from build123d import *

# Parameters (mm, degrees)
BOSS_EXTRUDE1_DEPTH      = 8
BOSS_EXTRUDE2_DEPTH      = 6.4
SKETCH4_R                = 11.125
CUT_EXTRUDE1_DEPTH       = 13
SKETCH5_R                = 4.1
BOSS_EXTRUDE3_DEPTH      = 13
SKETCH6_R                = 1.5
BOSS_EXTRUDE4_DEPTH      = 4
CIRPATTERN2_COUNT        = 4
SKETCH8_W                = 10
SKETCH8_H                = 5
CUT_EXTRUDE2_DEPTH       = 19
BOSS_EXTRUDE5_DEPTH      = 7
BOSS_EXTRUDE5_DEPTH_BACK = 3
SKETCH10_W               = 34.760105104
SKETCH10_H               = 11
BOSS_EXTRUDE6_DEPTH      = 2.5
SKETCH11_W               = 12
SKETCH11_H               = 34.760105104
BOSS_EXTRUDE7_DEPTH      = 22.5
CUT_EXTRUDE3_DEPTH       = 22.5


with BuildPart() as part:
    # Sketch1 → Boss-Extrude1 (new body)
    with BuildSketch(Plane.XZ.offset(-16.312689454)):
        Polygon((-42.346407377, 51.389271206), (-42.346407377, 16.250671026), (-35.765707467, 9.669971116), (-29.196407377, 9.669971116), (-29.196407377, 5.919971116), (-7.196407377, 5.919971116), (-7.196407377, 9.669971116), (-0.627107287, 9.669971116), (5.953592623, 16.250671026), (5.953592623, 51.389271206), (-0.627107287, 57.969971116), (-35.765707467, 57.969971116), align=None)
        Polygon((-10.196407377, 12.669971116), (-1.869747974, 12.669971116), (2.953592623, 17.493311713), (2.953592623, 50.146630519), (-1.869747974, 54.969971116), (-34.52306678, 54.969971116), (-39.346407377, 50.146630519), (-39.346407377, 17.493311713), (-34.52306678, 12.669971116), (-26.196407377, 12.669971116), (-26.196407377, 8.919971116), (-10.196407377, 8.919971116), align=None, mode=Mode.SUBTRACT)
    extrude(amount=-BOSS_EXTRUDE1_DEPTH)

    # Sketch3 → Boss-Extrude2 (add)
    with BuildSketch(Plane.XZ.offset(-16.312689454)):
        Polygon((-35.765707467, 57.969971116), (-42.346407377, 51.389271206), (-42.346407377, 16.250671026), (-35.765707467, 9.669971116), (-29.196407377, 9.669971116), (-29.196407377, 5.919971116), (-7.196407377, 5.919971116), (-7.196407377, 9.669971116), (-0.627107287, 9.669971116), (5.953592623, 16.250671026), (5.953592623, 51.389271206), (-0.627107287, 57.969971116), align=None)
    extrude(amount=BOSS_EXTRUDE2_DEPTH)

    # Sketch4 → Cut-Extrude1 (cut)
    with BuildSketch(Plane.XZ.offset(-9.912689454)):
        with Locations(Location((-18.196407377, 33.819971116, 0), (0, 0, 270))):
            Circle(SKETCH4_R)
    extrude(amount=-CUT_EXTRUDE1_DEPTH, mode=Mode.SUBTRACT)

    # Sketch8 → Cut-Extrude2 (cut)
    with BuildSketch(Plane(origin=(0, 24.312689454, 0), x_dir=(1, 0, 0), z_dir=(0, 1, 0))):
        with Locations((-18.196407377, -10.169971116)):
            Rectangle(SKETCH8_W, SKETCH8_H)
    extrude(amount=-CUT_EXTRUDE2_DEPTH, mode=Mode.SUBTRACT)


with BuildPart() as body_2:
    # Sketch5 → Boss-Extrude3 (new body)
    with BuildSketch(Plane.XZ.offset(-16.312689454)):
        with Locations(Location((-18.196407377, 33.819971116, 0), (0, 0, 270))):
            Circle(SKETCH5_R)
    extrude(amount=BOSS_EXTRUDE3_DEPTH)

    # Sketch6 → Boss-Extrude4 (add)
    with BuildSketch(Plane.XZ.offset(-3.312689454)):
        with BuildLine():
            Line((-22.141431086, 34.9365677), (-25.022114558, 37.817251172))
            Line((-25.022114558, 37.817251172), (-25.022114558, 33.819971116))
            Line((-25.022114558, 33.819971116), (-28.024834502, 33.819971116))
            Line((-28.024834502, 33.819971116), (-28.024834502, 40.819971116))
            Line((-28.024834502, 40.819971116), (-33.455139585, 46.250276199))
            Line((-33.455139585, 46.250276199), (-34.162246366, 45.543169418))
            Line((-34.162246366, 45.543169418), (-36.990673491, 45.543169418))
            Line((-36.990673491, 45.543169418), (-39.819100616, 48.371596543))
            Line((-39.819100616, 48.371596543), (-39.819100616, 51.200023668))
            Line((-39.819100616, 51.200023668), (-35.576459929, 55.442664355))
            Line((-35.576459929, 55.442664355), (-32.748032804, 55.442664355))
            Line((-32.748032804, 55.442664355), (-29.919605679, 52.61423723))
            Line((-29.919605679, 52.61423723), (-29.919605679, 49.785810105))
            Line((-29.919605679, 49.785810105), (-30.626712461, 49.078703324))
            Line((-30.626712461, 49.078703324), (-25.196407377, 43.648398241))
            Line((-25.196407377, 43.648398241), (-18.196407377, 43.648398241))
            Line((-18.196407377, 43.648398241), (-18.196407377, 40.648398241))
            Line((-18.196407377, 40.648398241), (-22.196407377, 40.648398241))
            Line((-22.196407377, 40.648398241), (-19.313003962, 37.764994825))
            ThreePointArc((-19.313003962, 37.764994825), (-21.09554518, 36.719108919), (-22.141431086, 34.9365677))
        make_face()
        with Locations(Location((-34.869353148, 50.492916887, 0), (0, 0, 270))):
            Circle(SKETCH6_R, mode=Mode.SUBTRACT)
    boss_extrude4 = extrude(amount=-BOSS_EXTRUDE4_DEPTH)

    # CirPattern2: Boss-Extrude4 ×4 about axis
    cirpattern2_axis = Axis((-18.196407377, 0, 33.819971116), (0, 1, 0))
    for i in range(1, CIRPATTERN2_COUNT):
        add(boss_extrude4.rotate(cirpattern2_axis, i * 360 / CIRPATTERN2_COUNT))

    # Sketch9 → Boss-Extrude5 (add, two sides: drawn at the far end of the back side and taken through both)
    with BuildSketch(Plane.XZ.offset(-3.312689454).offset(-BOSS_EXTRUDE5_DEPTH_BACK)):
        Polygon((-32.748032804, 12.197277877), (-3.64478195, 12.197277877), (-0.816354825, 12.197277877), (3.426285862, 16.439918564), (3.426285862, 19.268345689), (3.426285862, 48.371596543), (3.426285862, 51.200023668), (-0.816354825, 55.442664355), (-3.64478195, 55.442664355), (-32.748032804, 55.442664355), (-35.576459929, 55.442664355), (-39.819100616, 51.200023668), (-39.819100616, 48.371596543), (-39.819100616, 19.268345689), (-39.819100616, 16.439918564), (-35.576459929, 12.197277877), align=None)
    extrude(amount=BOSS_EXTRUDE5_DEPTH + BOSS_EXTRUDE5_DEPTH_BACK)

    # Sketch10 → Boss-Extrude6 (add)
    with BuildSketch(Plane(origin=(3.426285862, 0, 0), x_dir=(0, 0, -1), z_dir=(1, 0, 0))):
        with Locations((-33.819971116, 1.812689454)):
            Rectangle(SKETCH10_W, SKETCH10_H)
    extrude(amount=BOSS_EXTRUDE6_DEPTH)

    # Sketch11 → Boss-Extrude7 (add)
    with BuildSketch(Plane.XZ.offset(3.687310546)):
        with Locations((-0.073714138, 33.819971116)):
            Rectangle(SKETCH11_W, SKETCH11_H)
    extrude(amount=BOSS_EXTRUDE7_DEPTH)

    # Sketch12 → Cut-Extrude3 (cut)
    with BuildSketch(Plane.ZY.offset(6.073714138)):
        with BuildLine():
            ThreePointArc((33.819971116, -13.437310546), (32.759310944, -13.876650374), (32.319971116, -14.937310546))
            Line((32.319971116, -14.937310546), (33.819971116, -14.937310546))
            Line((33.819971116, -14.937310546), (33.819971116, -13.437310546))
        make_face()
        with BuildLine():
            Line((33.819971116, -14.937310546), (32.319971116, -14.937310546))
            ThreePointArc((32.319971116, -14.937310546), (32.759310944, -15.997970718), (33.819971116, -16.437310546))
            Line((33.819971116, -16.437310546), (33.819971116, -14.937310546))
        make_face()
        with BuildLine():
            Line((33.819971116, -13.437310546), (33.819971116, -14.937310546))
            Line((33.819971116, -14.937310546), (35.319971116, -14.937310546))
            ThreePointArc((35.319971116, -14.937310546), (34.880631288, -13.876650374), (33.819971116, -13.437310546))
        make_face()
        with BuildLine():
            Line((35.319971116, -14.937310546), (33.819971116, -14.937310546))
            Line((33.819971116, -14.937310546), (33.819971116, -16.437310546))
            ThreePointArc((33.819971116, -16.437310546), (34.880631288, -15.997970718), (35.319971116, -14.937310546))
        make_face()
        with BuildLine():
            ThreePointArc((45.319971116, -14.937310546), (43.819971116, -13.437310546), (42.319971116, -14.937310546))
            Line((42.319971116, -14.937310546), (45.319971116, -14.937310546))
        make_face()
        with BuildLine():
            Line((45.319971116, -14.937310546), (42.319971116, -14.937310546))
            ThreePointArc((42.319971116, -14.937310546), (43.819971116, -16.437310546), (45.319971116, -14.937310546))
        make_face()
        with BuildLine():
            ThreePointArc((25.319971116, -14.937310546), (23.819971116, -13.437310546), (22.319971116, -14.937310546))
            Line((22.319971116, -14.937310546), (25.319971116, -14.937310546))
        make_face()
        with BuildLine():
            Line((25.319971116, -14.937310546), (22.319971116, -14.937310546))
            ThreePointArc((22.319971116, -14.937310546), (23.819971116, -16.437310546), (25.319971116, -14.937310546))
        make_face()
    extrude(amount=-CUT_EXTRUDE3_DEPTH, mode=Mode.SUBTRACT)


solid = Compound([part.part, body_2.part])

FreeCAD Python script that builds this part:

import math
import FreeCAD as App
import Part
import Sketcher

V = App.Vector
Q = App.Units.Quantity

doc = App.newDocument("Part")
body = doc.addObject("PartDesign::Body", "Body")

# Sketch on XZ plane
sketch1 = body.newObject("Sketcher::SketchObject", "Sketch")
sketch1.AttachmentSupport = (doc.getObject("XZ_Plane"), [""])
sketch1.MapMode = "FlatFace"
sketch1.AttachmentOffset = App.Placement(V(0, 0, -16.312689), App.Rotation())
sketch1.addGeometry(Part.LineSegment(V(-42.3, 51.4, 0), V(-42.3, 16.3, 0)), False)
sketch1.addGeometry(Part.LineSegment(V(-42.3, 16.3, 0), V(-35.8, 9.7, 0)), False)
sketch1.addGeometry(Part.LineSegment(V(-35.8, 9.7, 0), V(-29.2, 9.7, 0)), False)
sketch1.addGeometry(Part.LineSegment(V(-29.2, 9.7, 0), V(-29.2, 5.9, 0)), False)
sketch1.addGeometry(Part.LineSegment(V(-29.2, 5.9, 0), V(-7.2, 5.9, 0)), False)
sketch1.addGeometry(Part.LineSegment(V(-7.2, 5.9, 0), V(-7.2, 9.7, 0)), False)
sketch1.addGeometry(Part.LineSegment(V(-7.2, 9.7, 0), V(-0.6, 9.7, 0)), False)
sketch1.addGeometry(Part.LineSegment(V(-0.6, 9.7, 0), V(6, 16.3, 0)), False)
sketch1.addGeometry(Part.LineSegment(V(6, 16.3, 0), V(6, 51.4, 0)), False)
sketch1.addGeometry(Part.LineSegment(V(6, 51.4, 0), V(-0.6, 58, 0)), False)
sketch1.addGeometry(Part.LineSegment(V(-0.6, 58, 0), V(-35.8, 58, 0)), False)
sketch1.addGeometry(Part.LineSegment(V(-35.8, 58, 0), V(-42.3, 51.4, 0)), False)
sketch1.addGeometry(Part.LineSegment(V(-1.9, 12.7, 0), V(-10.2, 12.7, 0)), False)
sketch1.addGeometry(Part.LineSegment(V(-10.2, 12.7, 0), V(-10.2, 8.9, 0)), False)
sketch1.addGeometry(Part.LineSegment(V(-10.2, 8.9, 0), V(-26.2, 8.9, 0)), False)
sketch1.addGeometry(Part.LineSegment(V(-26.2, 8.9, 0), V(-26.2, 12.7, 0)), False)
sketch1.addGeometry(Part.LineSegment(V(-26.2, 12.7, 0), V(-34.5, 12.7, 0)), False)
sketch1.addGeometry(Part.LineSegment(V(-34.5, 12.7, 0), V(-39.3, 17.5, 0)), False)
sketch1.addGeometry(Part.LineSegment(V(-39.3, 17.5, 0), V(-39.3, 50.1, 0)), False)
sketch1.addGeometry(Part.LineSegment(V(-39.3, 50.1, 0), V(-34.5, 55, 0)), False)
sketch1.addGeometry(Part.LineSegment(V(-34.5, 55, 0), V(-1.9, 55, 0)), False)
sketch1.addGeometry(Part.LineSegment(V(-1.9, 55, 0), V(3, 50.1, 0)), False)
sketch1.addGeometry(Part.LineSegment(V(3, 50.1, 0), V(3, 17.5, 0)), False)
sketch1.addGeometry(Part.LineSegment(V(3, 17.5, 0), V(-1.9, 12.7, 0)), False)
sketch1.addConstraint(Sketcher.Constraint("Coincident", 0, 2, 1, 1))
sketch1.addConstraint(Sketcher.Constraint("Coincident", 1, 2, 2, 1))
sketch1.addConstraint(Sketcher.Constraint("Coincident", 2, 2, 3, 1))
sketch1.addConstraint(Sketcher.Constraint("Coincident", 3, 2, 4, 1))
sketch1.addConstraint(Sketcher.Constraint("Coincident", 4, 2, 5, 1))
sketch1.addConstraint(Sketcher.Constraint("Coincident", 5, 2, 6, 1))
sketch1.addConstraint(Sketcher.Constraint("Coincident", 6, 2, 7, 1))
sketch1.addConstraint(Sketcher.Constraint("Coincident", 7, 2, 8, 1))
sketch1.addConstraint(Sketcher.Constraint("Coincident", 8, 2, 9, 1))
sketch1.addConstraint(Sketcher.Constraint("Coincident", 9, 2, 10, 1))
sketch1.addConstraint(Sketcher.Constraint("Coincident", 10, 2, 11, 1))
sketch1.addConstraint(Sketcher.Constraint("Coincident", 11, 2, 0, 1))
sketch1.addConstraint(Sketcher.Constraint("Coincident", 12, 2, 13, 1))
sketch1.addConstraint(Sketcher.Constraint("Coincident", 13, 2, 14, 1))
sketch1.addConstraint(Sketcher.Constraint("Coincident", 14, 2, 15, 1))
sketch1.addConstraint(Sketcher.Constraint("Coincident", 15, 2, 16, 1))
sketch1.addConstraint(Sketcher.Constraint("Coincident", 16, 2, 17, 1))
sketch1.addConstraint(Sketcher.Constraint("Coincident", 17, 2, 18, 1))
sketch1.addConstraint(Sketcher.Constraint("Coincident", 18, 2, 19, 1))
sketch1.addConstraint(Sketcher.Constraint("Coincident", 19, 2, 20, 1))
sketch1.addConstraint(Sketcher.Constraint("Coincident", 20, 2, 21, 1))
sketch1.addConstraint(Sketcher.Constraint("Coincident", 21, 2, 22, 1))
sketch1.addConstraint(Sketcher.Constraint("Coincident", 22, 2, 23, 1))
sketch1.addConstraint(Sketcher.Constraint("Coincident", 23, 2, 12, 1))
sketch1.addConstraint(Sketcher.Constraint("Vertical", 0))
sketch1.addConstraint(Sketcher.Constraint("Horizontal", 2))
sketch1.addConstraint(Sketcher.Constraint("Vertical", 3))
sketch1.addConstraint(Sketcher.Constraint("Horizontal", 4))
sketch1.addConstraint(Sketcher.Constraint("Vertical", 5))
sketch1.addConstraint(Sketcher.Constraint("Horizontal", 6))
sketch1.addConstraint(Sketcher.Constraint("Vertical", 8))
sketch1.addConstraint(Sketcher.Constraint("Horizontal", 10))
sketch1.addConstraint(Sketcher.Constraint("Horizontal", 12))
sketch1.addConstraint(Sketcher.Constraint("Vertical", 13))
sketch1.addConstraint(Sketcher.Constraint("Horizontal", 14))
sketch1.addConstraint(Sketcher.Constraint("Vertical", 15))
sketch1.addConstraint(Sketcher.Constraint("Horizontal", 16))
sketch1.addConstraint(Sketcher.Constraint("Vertical", 18))
sketch1.addConstraint(Sketcher.Constraint("Horizontal", 20))
sketch1.addConstraint(Sketcher.Constraint("Vertical", 22))
sketch1.addConstraint(Sketcher.Constraint("Perpendicular", 1, 7))
sketch1.addConstraint(Sketcher.Constraint("Perpendicular", 7, 9))
sketch1.addConstraint(Sketcher.Constraint("Perpendicular", 9, 11))
sketch1.addConstraint(Sketcher.Constraint("Perpendicular", 11, 17))
sketch1.addConstraint(Sketcher.Constraint("Perpendicular", 17, 19))
sketch1.addConstraint(Sketcher.Constraint("Perpendicular", 19, 21))
sketch1.addConstraint(Sketcher.Constraint("Perpendicular", 21, 23))
sketch1.addConstraint(Sketcher.Constraint("Horizontal", 2, 2, 5, 2))
sketch1.addConstraint(Sketcher.Constraint("Horizontal", 0, 2, 7, 2))
sketch1.addConstraint(Sketcher.Constraint("Horizontal", 8, 2, 11, 2))
sketch1.addConstraint(Sketcher.Constraint("Horizontal", 12, 2, 15, 2))
sketch1.addConstraint(Sketcher.Constraint("Horizontal", 18, 2, 21, 2))
sketch1.addConstraint(Sketcher.Constraint("Horizontal", 17, 2, 22, 2))
sketch1.addConstraint(Sketcher.Constraint("Vertical", 6, 2, 9, 2))
sketch1.addConstraint(Sketcher.Constraint("Vertical", 1, 2, 10, 2))
sketch1.addConstraint(Sketcher.Constraint("Vertical", 16, 2, 19, 2))
sketch1.addConstraint(Sketcher.Constraint("Equal", 2, 6))
sketch1.addConstraint(Sketcher.Constraint("Equal", 12, 16))
sketch1.addConstraint(Sketcher.Constraint("Equal", 10, 0))
sketch1.addConstraint(Sketcher.Constraint("Equal", 5, 13))
sketch1.addConstraint(Sketcher.Constraint("Equal", 20, 18))
sketch1.addConstraint(Sketcher.Constraint("DistanceX", 4, 1, 4, 2, 22.0))
sketch1.addConstraint(Sketcher.Constraint("DistanceX", 14, 2, 14, 1, 16.0))
sketch1.addConstraint(Sketcher.Constraint("DistanceX", 12, 2, 5, 2, 3.0))
sketch1.addConstraint(Sketcher.Constraint("DistanceY", 5, 2, 12, 2, 3.0))
sketch1.addConstraint(Sketcher.Constraint("DistanceX", 0, 2, 17, 2, 3.0))
sketch1.addConstraint(Sketcher.Constraint("DistanceY", 3, 2, 3, 1, 3.75))
sketch1.addConstraint(Sketcher.Constraint("DistanceY", 6, 2, 9, 2, 48.3))
sketch1.addConstraint(Sketcher.Constraint("DistanceX", 2, 1, 2, 2, 6.5693))
sketch1.addConstraint(Sketcher.Constraint("DistanceX", 12, 2, 12, 1, 8.326659))
sketch1.addConstraint(Sketcher.Constraint("DistanceY", -1, 1, 0, 2, 16.250671))
sketch1.addConstraint(Sketcher.Constraint("DistanceX", 0, 2, -1, 1, 42.346407))
pad1 = body.newObject("PartDesign::Pad", "Pad")
pad1.Profile = sketch1
pad1.Length = 8
pad1.Reversed = True

# Sketch on XZ plane
sketch2 = body.newObject("Sketcher::SketchObject", "Sketch001")
sketch2.AttachmentSupport = (doc.getObject("XZ_Plane"), [""])
sketch2.MapMode = "FlatFace"
sketch2.AttachmentOffset = App.Placement(V(0, 0, -16.312689), App.Rotation())
sketch2.addGeometry(Part.LineSegment(V(-35.8, 58, 0), V(-42.3, 51.4, 0)), False)
sketch2.addGeometry(Part.LineSegment(V(-42.3, 51.4, 0), V(-42.3, 16.3, 0)), False)
sketch2.addGeometry(Part.LineSegment(V(-42.3, 16.3, 0), V(-35.8, 9.7, 0)), False)
sketch2.addGeometry(Part.LineSegment(V(-35.8, 9.7, 0), V(-29.2, 9.7, 0)), False)
sketch2.addGeometry(Part.LineSegment(V(-29.2, 9.7, 0), V(-29.2, 5.9, 0)), False)
sketch2.addGeometry(Part.LineSegment(V(-29.2, 5.9, 0), V(-7.2, 5.9, 0)), False)
sketch2.addGeometry(Part.LineSegment(V(-7.2, 5.9, 0), V(-7.2, 9.7, 0)), False)
sketch2.addGeometry(Part.LineSegment(V(-7.2, 9.7, 0), V(-0.6, 9.7, 0)), False)
sketch2.addGeometry(Part.LineSegment(V(-0.6, 9.7, 0), V(6, 16.3, 0)), False)
sketch2.addGeometry(Part.LineSegment(V(6, 16.3, 0), V(6, 51.4, 0)), False)
sketch2.addGeometry(Part.LineSegment(V(6, 51.4, 0), V(-0.6, 58, 0)), False)
sketch2.addGeometry(Part.LineSegment(V(-0.6, 58, 0), V(-35.8, 58, 0)), False)
sketch2.addConstraint(Sketcher.Constraint("Coincident", 0, 2, 1, 1))
sketch2.addConstraint(Sketcher.Constraint("Coincident", 1, 2, 2, 1))
sketch2.addConstraint(Sketcher.Constraint("Coincident", 2, 2, 3, 1))
sketch2.addConstraint(Sketcher.Constraint("Coincident", 3, 2, 4, 1))
sketch2.addConstraint(Sketcher.Constraint("Coincident", 4, 2, 5, 1))
sketch2.addConstraint(Sketcher.Constraint("Coincident", 5, 2, 6, 1))
sketch2.addConstraint(Sketcher.Constraint("Coincident", 6, 2, 7, 1))
sketch2.addConstraint(Sketcher.Constraint("Coincident", 7, 2, 8, 1))
sketch2.addConstraint(Sketcher.Constraint("Coincident", 8, 2, 9, 1))
sketch2.addConstraint(Sketcher.Constraint("Coincident", 9, 2, 10, 1))
sketch2.addConstraint(Sketcher.Constraint("Coincident", 10, 2, 11, 1))
sketch2.addConstraint(Sketcher.Constraint("Coincident", 11, 2, 0, 1))
sketch2.addConstraint(Sketcher.Constraint("Vertical", 1))
sketch2.addConstraint(Sketcher.Constraint("Horizontal", 3))
sketch2.addConstraint(Sketcher.Constraint("Vertical", 4))
sketch2.addConstraint(Sketcher.Constraint("Horizontal", 5))
sketch2.addConstraint(Sketcher.Constraint("Vertical", 6))
sketch2.addConstraint(Sketcher.Constraint("Horizontal", 7))
sketch2.addConstraint(Sketcher.Constraint("Vertical", 9))
sketch2.addConstraint(Sketcher.Constraint("Horizontal", 11))
sketch2.addConstraint(Sketcher.Constraint("Perpendicular", 0, 2))
sketch2.addConstraint(Sketcher.Constraint("Perpendicular", 2, 8))
sketch2.addConstraint(Sketcher.Constraint("Perpendicular", 8, 10))
sketch2.addConstraint(Sketcher.Constraint("Horizontal", 3, 2, 6, 2))
sketch2.addConstraint(Sketcher.Constraint("Horizontal", 1, 2, 8, 2))
sketch2.addConstraint(Sketcher.Constraint("Horizontal", 0, 2, 9, 2))
sketch2.addConstraint(Sketcher.Constraint("Vertical", 7, 2, 10, 2))
sketch2.addConstraint(Sketcher.Constraint("Vertical", 2, 2, 11, 2))
sketch2.addConstraint(Sketcher.Constraint("Equal", 3, 7))
sketch2.addConstraint(Sketcher.Constraint("Equal", 11, 1))
sketch2.addConstraint(Sketcher.Constraint("DistanceX", 5, 1, 5, 2, 22.0))
sketch2.addConstraint(Sketcher.Constraint("DistanceY", 4, 2, 4, 1, 3.75))
sketch2.addConstraint(Sketcher.Constraint("DistanceX", 0, 2, 9, 2, 48.3))
sketch2.addConstraint(Sketcher.Constraint("DistanceX", 3, 1, 3, 2, 6.5693))
sketch2.addConstraint(Sketcher.Constraint("DistanceY", -1, 1, 0, 2, 51.389271))
sketch2.addConstraint(Sketcher.Constraint("DistanceX", 0, 2, -1, 1, 42.346407))
pad2 = body.newObject("PartDesign::Pad", "Pad001")
pad2.Profile = sketch2
pad2.Length = 6.4

# Sketch on XZ plane
sketch3 = body.newObject("Sketcher::SketchObject", "Sketch002")
sketch3.AttachmentSupport = (doc.getObject("XZ_Plane"), [""])
sketch3.MapMode = "FlatFace"
sketch3.AttachmentOffset = App.Placement(V(0, 0, -9.912689), App.Rotation())
sketch3.addGeometry(Part.Circle(V(-18, 34, 0), V(0, 0, 1), 11), False)
sketch3.addConstraint(Sketcher.Constraint("Diameter", 0, 22.25))
sketch3.addConstraint(Sketcher.Constraint("DistanceY", -1, 1, 0, 3, 33.819971))
sketch3.addConstraint(Sketcher.Constraint("DistanceX", 0, 3, -1, 1, 18.196407))
pocket1 = body.newObject("PartDesign::Pocket", "Pocket")
pocket1.Profile = sketch3
pocket1.Length = 13

# Sketch on XZ plane
sketch4 = body.newObject("Sketcher::SketchObject", "Sketch003")
sketch4.AttachmentSupport = (doc.getObject("XZ_Plane"), [""])
sketch4.MapMode = "FlatFace"
sketch4.AttachmentOffset = App.Placement(V(0, 0, -24.312689), App.Rotation())
sketch4.addGeometry(Part.LineSegment(V(-23.2, 7.7, 0), V(-23.2, 12.7, 0)), False)
sketch4.addGeometry(Part.LineSegment(V(-23.2, 12.7, 0), V(-13.2, 12.7, 0)), False)
sketch4.addGeometry(Part.LineSegment(V(-13.2, 12.7, 0), V(-13.2, 7.7, 0)), False)
sketch4.addGeometry(Part.LineSegment(V(-13.2, 7.7, 0), V(-23.2, 7.7, 0)), False)
sketch4.addConstraint(Sketcher.Constraint("Coincident", 0, 2, 1, 1))
sketch4.addConstraint(Sketcher.Constraint("Coincident", 1, 2, 2, 1))
sketch4.addConstraint(Sketcher.Constraint("Coincident", 2, 2, 3, 1))
sketch4.addConstraint(Sketcher.Constraint("Coincident", 3, 2, 0, 1))
sketch4.addConstraint(Sketcher.Constraint("Vertical", 0))
sketch4.addConstraint(Sketcher.Constraint("Horizontal", 1))
sketch4.addConstraint(Sketcher.Constraint("Vertical", 2))
sketch4.addConstraint(Sketcher.Constraint("Horizontal", 3))
sketch4.addConstraint(Sketcher.Constraint("DistanceX", 1, 1, 1, 2, 10.0))
sketch4.addConstraint(Sketcher.Constraint("DistanceY", 0, 1, 0, 2, 5.0))
sketch4.addConstraint(Sketcher.Constraint("DistanceY", -1, 1, 0, 2, 12.669971))
sketch4.addConstraint(Sketcher.Constraint("DistanceX", 0, 2, -1, 1, 23.196407))
pocket2 = body.newObject("PartDesign::Pocket", "Pocket001")
pocket2.Profile = sketch4
pocket2.Length = 19
pocket2.Reversed = True
body2 = doc.addObject("PartDesign::Body", "Body001")

# Sketch on XZ plane
sketch5 = body2.newObject("Sketcher::SketchObject", "Sketch004")
sketch5.AttachmentSupport = (doc.getObject("XZ_Plane001"), [""])
sketch5.MapMode = "FlatFace"
sketch5.AttachmentOffset = App.Placement(V(0, 0, -16.312689), App.Rotation())
sketch5.addGeometry(Part.Circle(V(-18.2, 33.8, 0), V(0, 0, 1), 4.1), False)
sketch5.addConstraint(Sketcher.Constraint("Diameter", 0, 8.2))
sketch5.addConstraint(Sketcher.Constraint("DistanceY", -1, 1, 0, 3, 33.819971))
sketch5.addConstraint(Sketcher.Constraint("DistanceX", 0, 3, -1, 1, 18.196407))
pad3 = body2.newObject("PartDesign::Pad", "Pad002")
pad3.Profile = sketch5
pad3.Length = 13

# Sketch on XZ plane
sketch6 = body2.newObject("Sketcher::SketchObject", "Sketch005")
sketch6.AttachmentSupport = (doc.getObject("XZ_Plane001"), [""])
sketch6.MapMode = "FlatFace"
sketch6.AttachmentOffset = App.Placement(V(0, 0, -3.312689), App.Rotation())
sketch6.addGeometry(Part.LineSegment(V(-25, 37.8, 0), V(-22.1, 34.9, 0)), False)
sketch6.addGeometry(Part.ArcOfCircle(Part.Circle(V(-18.2, 33.8, 0), V(0, 0, 1), 4.1), math.radians(106), math.radians(164)), False)
sketch6.addGeometry(Part.LineSegment(V(-19.3, 37.8, 0), V(-22.2, 40.6, 0)), False)
sketch6.addGeometry(Part.LineSegment(V(-22.2, 40.6, 0), V(-18.2, 40.6, 0)), False)
sketch6.addGeometry(Part.LineSegment(V(-18.2, 40.6, 0), V(-18.2, 43.6, 0)), False)
sketch6.addGeometry(Part.LineSegment(V(-18.2, 43.6, 0), V(-25.2, 43.6, 0)), False)
sketch6.addGeometry(Part.LineSegment(V(-25.2, 43.6, 0), V(-30.6, 49.1, 0)), False)
sketch6.addGeometry(Part.LineSegment(V(-30.6, 49.1, 0), V(-29.9, 49.8, 0)), False)
sketch6.addGeometry(Part.LineSegment(V(-29.9, 49.8, 0), V(-29.9, 52.6, 0)), False)
sketch6.addGeometry(Part.LineSegment(V(-29.9, 52.6, 0), V(-32.7, 55.4, 0)), False)
sketch6.addGeometry(Part.LineSegment(V(-32.7, 55.4, 0), V(-35.6, 55.4, 0)), False)
sketch6.addGeometry(Part.LineSegment(V(-35.6, 55.4, 0), V(-39.8, 51.2, 0)), False)
sketch6.addGeometry(Part.LineSegment(V(-39.8, 51.2, 0), V(-39.8, 48.4, 0)), False)
sketch6.addGeometry(Part.LineSegment(V(-39.8, 48.4, 0), V(-37, 45.5, 0)), False)
sketch6.addGeometry(Part.LineSegment(V(-37, 45.5, 0), V(-34.2, 45.5, 0)), False)
sketch6.addGeometry(Part.LineSegment(V(-34.2, 45.5, 0), V(-33.5, 46.3, 0)), False)
sketch6.addGeometry(Part.LineSegment(V(-33.5, 46.3, 0), V(-28, 40.8, 0)), False)
sketch6.addGeometry(Part.LineSegment(V(-28, 40.8, 0), V(-28, 33.8, 0)), False)
sketch6.addGeometry(Part.LineSegment(V(-28, 33.8, 0), V(-25, 33.8, 0)), False)
sketch6.addGeometry(Part.LineSegment(V(-25, 33.8, 0), V(-25, 37.8, 0)), False)
sketch6.addGeometry(Part.Circle(V(-34.9, 50.5, 0), V(0, 0, 1), 1.5), False)
sketch6.addConstraint(Sketcher.Constraint("Coincident", 0, 2, 1, 2))
sketch6.addConstraint(Sketcher.Constraint("Coincident", 1, 1, 2, 1))
sketch6.addConstraint(Sketcher.Constraint("Coincident", 2, 2, 3, 1))
sketch6.addConstraint(Sketcher.Constraint("Coincident", 3, 2, 4, 1))
sketch6.addConstraint(Sketcher.Constraint("Coincident", 4, 2, 5, 1))
sketch6.addConstraint(Sketcher.Constraint("Coincident", 5, 2, 6, 1))
sketch6.addConstraint(Sketcher.Constraint("Coincident", 6, 2, 7, 1))
sketch6.addConstraint(Sketcher.Constraint("Coincident", 7, 2, 8, 1))
sketch6.addConstraint(Sketcher.Constraint("Coincident", 8, 2, 9, 1))
sketch6.addConstraint(Sketcher.Constraint("Coincident", 9, 2, 10, 1))
sketch6.addConstraint(Sketcher.Constraint("Coincident", 10, 2, 11, 1))
sketch6.addConstraint(Sketcher.Constraint("Coincident", 11, 2, 12, 1))
sketch6.addConstraint(Sketcher.Constraint("Coincident", 12, 2, 13, 1))
sketch6.addConstraint(Sketcher.Constraint("Coincident", 13, 2, 14, 1))
sketch6.addConstraint(Sketcher.Constraint("Coincident", 14, 2, 15, 1))
sketch6.addConstraint(Sketcher.Constraint("Coincident", 15, 2, 16, 1))
sketch6.addConstraint(Sketcher.Constraint("Coincident", 16, 2, 17, 1))
sketch6.addConstraint(Sketcher.Constraint("Coincident", 17, 2, 18, 1))
sketch6.addConstraint(Sketcher.Constraint("Coincident", 18, 2, 19, 1))
sketch6.addConstraint(Sketcher.Constraint("Coincident", 19, 2, 0, 1))
sketch6.addConstraint(Sketcher.Constraint("Horizontal", 3))
sketch6.addConstraint(Sketcher.Constraint("Vertical", 4))
sketch6.addConstraint(Sketcher.Constraint("Horizontal", 5))
sketch6.addConstraint(Sketcher.Constraint("Vertical", 8))
sketch6.addConstraint(Sketcher.Constraint("Horizontal", 10))
sketch6.addConstraint(Sketcher.Constraint("Vertical", 12))
sketch6.addConstraint(Sketcher.Constraint("Horizontal", 14))
sketch6.addConstraint(Sketcher.Constraint("Vertical", 17))
sketch6.addConstraint(Sketcher.Constraint("Horizontal", 18))
sketch6.addConstraint(Sketcher.Constraint("Vertical", 19))
sketch6.addConstraint(Sketcher.Constraint("Parallel", 0, 2))
sketch6.addConstraint(Sketcher.Constraint("Parallel", 2, 6))
sketch6.addConstraint(Sketcher.Constraint("Perpendicular", 6, 7))
sketch6.addConstraint(Sketcher.Constraint("Perpendicular", 7, 9))
sketch6.addConstraint(Sketcher.Constraint("Perpendicular", 9, 11))
sketch6.addConstraint(Sketcher.Constraint("Perpendicular", 11, 13))
sketch6.addConstraint(Sketcher.Constraint("Perpendicular", 13, 15))
sketch6.addConstraint(Sketcher.Constraint("Perpendicular", 15, 16))
sketch6.addConstraint(Sketcher.Constraint("Horizontal", 1, 3, 17, 2))
sketch6.addConstraint(Sketcher.Constraint("Vertical", 1, 3, 3, 2))
sketch6.addConstraint(Sketcher.Constraint("Equal", 10, 14))
sketch6.addConstraint(Sketcher.Constraint("Equal", 14, 8))
sketch6.addConstraint(Sketcher.Constraint("Equal", 8, 12))
sketch6.addConstraint(Sketcher.Constraint("Equal", 5, 17))
sketch6.addConstraint(Sketcher.Constraint("Equal", 9, 13))
sketch6.addConstraint(Sketcher.Constraint("Equal", 7, 15))
sketch6.addConstraint(Sketcher.Constraint("Equal", 6, 16))
sketch6.addConstraint(Sketcher.Constraint("Diameter", 20, 3.0))
sketch6.addConstraint(Sketcher.Constraint("Radius", 1, 4.1))
sketch6.addConstraint(Sketcher.Constraint("DistanceX", 3, 1, 3, 2, 4.0))
sketch6.addConstraint(Sketcher.Constraint("DistanceX", 5, 2, 5, 1, 7.0))
sketch6.addConstraint(Sketcher.Constraint("DistanceY", 4, 1, 4, 2, 3.0))
sketch6.addConstraint(Sketcher.Constraint("Angle", 0, Q("-45 deg")))
sketch6.addConstraint(Sketcher.Constraint("Distance", 7, 1.0))
sketch6.addConstraint(Sketcher.Constraint("Distance", 9, 4.0))
sketch6.addConstraint(Sketcher.Constraint("Distance", 11, 6.0))
sketch6.addConstraint(Sketcher.Constraint("Distance", 0, 4.073902))
sketch6.addConstraint(Sketcher.Constraint("DistanceX", 18, 1, 18, 2, 3.00272))
sketch6.addConstraint(Sketcher.Constraint("DistanceY", -1, 1, 2, 2, 40.648398))
sketch6.addConstraint(Sketcher.Constraint("DistanceX", 11, 2, -1, 1, 39.819101))
sketch6.addConstraint(Sketcher.Constraint("DistanceX", 7, 2, 5, 2, 4.723198))
sketch6.addConstraint(Sketcher.Constraint("DistanceX", 10, 2, 10, 1, 2.828427))
sketch6.addConstraint(Sketcher.Constraint("DistanceY", 0, 2, 20, 3, 15.556349))
sketch6.addConstraint(Sketcher.Constraint("DistanceX", 20, 3, 1, 1, 15.556349))
pad4 = body2.newObject("PartDesign::Pad", "Pad003")
pad4.Profile = sketch6
pad4.Length = 4
pad4.Reversed = True
doc.recompute()

datumline = body2.newObject("PartDesign::Line", "DatumLine")
datumline.Placement = App.Placement(V(-18.196407, 0, 33.819971), App.Rotation(V(0, 0, 1), V(0, 1, 0)))
polarpattern = body2.newObject("PartDesign::PolarPattern", "PolarPattern")
polarpattern.Originals = [pad4]
polarpattern.Axis = (datumline, [""])
polarpattern.Angle = 360
polarpattern.Occurrences = 4
body2.Tip = polarpattern

# Sketch on XZ plane
sketch7 = body2.newObject("Sketcher::SketchObject", "Sketch006")
sketch7.AttachmentSupport = (doc.getObject("XZ_Plane001"), [""])
sketch7.MapMode = "FlatFace"
sketch7.AttachmentOffset = App.Placement(V(0, 0, -3.312689), App.Rotation())
sketch7.addGeometry(Part.LineSegment(V(-1, 12, 0), V(3, 16, 0)), False)
sketch7.addGeometry(Part.LineSegment(V(3, 16, 0), V(3, 51, 0)), False)
sketch7.addGeometry(Part.LineSegment(V(3, 51, 0), V(-1, 55, 0)), False)
sketch7.addGeometry(Part.LineSegment(V(-1, 55, 0), V(-36, 55, 0)), False)
sketch7.addGeometry(Part.LineSegment(V(-36, 55, 0), V(-40, 51, 0)), False)
sketch7.addGeometry(Part.LineSegment(V(-40, 51, 0), V(-40, 16, 0)), False)
sketch7.addGeometry(Part.LineSegment(V(-40, 16, 0), V(-36, 12, 0)), False)
sketch7.addGeometry(Part.LineSegment(V(-36, 12, 0), V(-1, 12, 0)), False)
sketch7.addConstraint(Sketcher.Constraint("Coincident", 0, 2, 1, 1))
sketch7.addConstraint(Sketcher.Constraint("Coincident", 1, 2, 2, 1))
sketch7.addConstraint(Sketcher.Constraint("Coincident", 2, 2, 3, 1))
sketch7.addConstraint(Sketcher.Constraint("Coincident", 3, 2, 4, 1))
sketch7.addConstraint(Sketcher.Constraint("Coincident", 4, 2, 5, 1))
sketch7.addConstraint(Sketcher.Constraint("Coincident", 5, 2, 6, 1))
sketch7.addConstraint(Sketcher.Constraint("Coincident", 6, 2, 7, 1))
sketch7.addConstraint(Sketcher.Constraint("Coincident", 7, 2, 0, 1))
sketch7.addConstraint(Sketcher.Constraint("Vertical", 1))
sketch7.addConstraint(Sketcher.Constraint("Horizontal", 3))
sketch7.addConstraint(Sketcher.Constraint("Vertical", 5))
sketch7.addConstraint(Sketcher.Constraint("Horizontal", 7))
sketch7.addConstraint(Sketcher.Constraint("Perpendicular", 0, 2))
sketch7.addConstraint(Sketcher.Constraint("Perpendicular", 2, 4))
sketch7.addConstraint(Sketcher.Constraint("Perpendicular", 4, 6))
sketch7.addConstraint(Sketcher.Constraint("Horizontal", 1, 2, 4, 2))
sketch7.addConstraint(Sketcher.Constraint("Horizontal", 0, 2, 5, 2))
sketch7.addConstraint(Sketcher.Constraint("Vertical", 3, 2, 6, 2))
sketch7.addConstraint(Sketcher.Constraint("Vertical", 2, 2, 7, 2))
sketch7.addConstraint(Sketcher.Constraint("Equal", 7, 1))
sketch7.addConstraint(Sketcher.Constraint("Distance", 0, 6.0))
sketch7.addConstraint(Sketcher.Constraint("DistanceX", 4, 2, -1, 1, 39.819101))
sketch7.addConstraint(Sketcher.Constraint("DistanceX", 3, 2, 3, 1, 34.760105))
sketch7.addConstraint(Sketcher.Constraint("DistanceY", -1, 1, 0, 2, 16.439919))
pad5 = body2.newObject("PartDesign::Pad", "Pad004")
pad5.Profile = sketch7
pad5.Type = "TwoLengths"
pad5.Length = 7
pad5.Length2 = 3

# Sketch on YZ plane
sketch8 = body2.newObject("Sketcher::SketchObject", "Sketch007")
sketch8.AttachmentSupport = (doc.getObject("YZ_Plane001"), [""])
sketch8.MapMode = "FlatFace"
sketch8.AttachmentOffset = App.Placement(V(0, 0, 3.426286), App.Rotation())
sketch8.addGeometry(Part.LineSegment(V(7, 51, 0), V(-4, 51, 0)), False)
sketch8.addGeometry(Part.LineSegment(V(-4, 51, 0), V(-4, 16, 0)), False)
sketch8.addGeometry(Part.LineSegment(V(-4, 16, 0), V(7, 16, 0)), False)
sketch8.addGeometry(Part.LineSegment(V(7, 16, 0), V(7, 51, 0)), False)
sketch8.addConstraint(Sketcher.Constraint("Coincident", 0, 2, 1, 1))
sketch8.addConstraint(Sketcher.Constraint("Coincident", 1, 2, 2, 1))
sketch8.addConstraint(Sketcher.Constraint("Coincident", 2, 2, 3, 1))
sketch8.addConstraint(Sketcher.Constraint("Coincident", 3, 2, 0, 1))
sketch8.addConstraint(Sketcher.Constraint("Horizontal", 0))
sketch8.addConstraint(Sketcher.Constraint("Vertical", 1))
sketch8.addConstraint(Sketcher.Constraint("Horizontal", 2))
sketch8.addConstraint(Sketcher.Constraint("Vertical", 3))
sketch8.addConstraint(Sketcher.Constraint("DistanceX", 0, 2, 0, 1, 11.0))
sketch8.addConstraint(Sketcher.Constraint("DistanceY", 1, 2, 1, 1, 34.760105))
sketch8.addConstraint(Sketcher.Constraint("DistanceX", 0, 2, -1, 1, 3.687311))
sketch8.addConstraint(Sketcher.Constraint("DistanceY", -1, 1, 1, 2, 16.439919))
pad6 = body2.newObject("PartDesign::Pad", "Pad005")
pad6.Profile = sketch8
pad6.Length = 2.5

# Sketch on XZ plane
sketch9 = body2.newObject("Sketcher::SketchObject", "Sketch008")
sketch9.AttachmentSupport = (doc.getObject("XZ_Plane001"), [""])
sketch9.MapMode = "FlatFace"
sketch9.AttachmentOffset = App.Placement(V(0, 0, 3.687311), App.Rotation())
sketch9.addGeometry(Part.LineSegment(V(-6, 51, 0), V(-6, 16, 0)), False)
sketch9.addGeometry(Part.LineSegment(V(-6, 16, 0), V(6, 16, 0)), False)
sketch9.addGeometry(Part.LineSegment(V(6, 16, 0), V(6, 51, 0)), False)
sketch9.addGeometry(Part.LineSegment(V(6, 51, 0), V(-6, 51, 0)), False)
sketch9.addConstraint(Sketcher.Constraint("Coincident", 0, 2, 1, 1))
sketch9.addConstraint(Sketcher.Constraint("Coincident", 1, 2, 2, 1))
sketch9.addConstraint(Sketcher.Constraint("Coincident", 2, 2, 3, 1))
sketch9.addConstraint(Sketcher.Constraint("Coincident", 3, 2, 0, 1))
sketch9.addConstraint(Sketcher.Constraint("Vertical", 0))
sketch9.addConstraint(Sketcher.Constraint("Horizontal", 1))
sketch9.addConstraint(Sketcher.Constraint("Vertical", 2))
sketch9.addConstraint(Sketcher.Constraint("Horizontal", 3))
sketch9.addConstraint(Sketcher.Constraint("DistanceX", 1, 1, 1, 2, 12.0))
sketch9.addConstraint(Sketcher.Constraint("DistanceY", 0, 2, 0, 1, 34.760105))
sketch9.addConstraint(Sketcher.Constraint("DistanceY", -1, 1, 0, 2, 16.439919))
sketch9.addConstraint(Sketcher.Constraint("DistanceX", 0, 2, -1, 1, 6.073714))
pad7 = body2.newObject("PartDesign::Pad", "Pad006")
pad7.Profile = sketch9
pad7.Length = 22.5

# Sketch on YZ plane
sketch10 = body2.newObject("Sketcher::SketchObject", "Sketch009")
sketch10.AttachmentSupport = (doc.getObject("YZ_Plane001"), [""])
sketch10.MapMode = "FlatFace"
sketch10.AttachmentOffset = App.Placement(V(0, 0, -6.073714), App.Rotation())
sketch10.addGeometry(Part.ArcOfCircle(Part.Circle(V(-14.9, 33.8, 0), V(0, 0, 1), 1.5), math.radians(-90), math.radians(0)), False)
sketch10.addGeometry(Part.ArcOfCircle(Part.Circle(V(-14.9, 33.8, 0), V(0, 0, 1), 1.5), math.radians(180), math.radians(270)), False)
sketch10.addGeometry(Part.ArcOfCircle(Part.Circle(V(-14.9, 33.8, 0), V(0, 0, 1), 1.5), math.radians(90), math.radians(180)), False)
sketch10.addGeometry(Part.ArcOfCircle(Part.Circle(V(-14.9, 33.8, 0), V(0, 0, 1), 1.5), math.radians(0), math.radians(90)), False)
sketch10.addGeometry(Part.Circle(V(-14.9, 43.8, 0), V(0, 0, 1), 1.5), False)
sketch10.addGeometry(Part.Circle(V(-14.9, 23.8, 0), V(0, 0, 1), 1.5), False)
sketch10.addConstraint(Sketcher.Constraint("Tangent", 0, 1, 1, 2))
sketch10.addConstraint(Sketcher.Constraint("Tangent", 1, 1, 2, 2))
sketch10.addConstraint(Sketcher.Constraint("Tangent", 2, 1, 3, 2))
sketch10.addConstraint(Sketcher.Constraint("Tangent", 3, 1, 0, 2))
sketch10.addConstraint(Sketcher.Constraint("Equal", 0, 1))
sketch10.addConstraint(Sketcher.Constraint("Equal", 3, 4))
sketch10.addConstraint(Sketcher.Constraint("Equal", 4, 5))
sketch10.addConstraint(Sketcher.Constraint("Horizontal", 3, 3, 1, 1))
sketch10.addConstraint(Sketcher.Constraint("Horizontal", 1, 1, 3, 1))
sketch10.addConstraint(Sketcher.Constraint("Vertical", 3, 3, 4, 3))
sketch10.addConstraint(Sketcher.Constraint("Vertical", 4, 3, 5, 3))
sketch10.addConstraint(Sketcher.Constraint("Vertical", 5, 3, 0, 1))
sketch10.addConstraint(Sketcher.Constraint("Vertical", 0, 1, 2, 1))
sketch10.addConstraint(Sketcher.Constraint("Diameter", 4, 3.0))
sketch10.addConstraint(Sketcher.Constraint("DistanceY", 2, 3, 4, 3, 10.0))
sketch10.addConstraint(Sketcher.Constraint("DistanceY", 5, 3, 0, 3, 10.0))
sketch10.addConstraint(Sketcher.Constraint("DistanceX", 0, 3, -1, 1, 14.937311))
sketch10.addConstraint(Sketcher.Constraint("DistanceY", -1, 1, 0, 3, 33.819971))
pocket3 = body2.newObject("PartDesign::Pocket", "Pocket002")
pocket3.Profile = sketch10
pocket3.Length = 22.5
pocket3.Reversed = True

doc.recompute()
